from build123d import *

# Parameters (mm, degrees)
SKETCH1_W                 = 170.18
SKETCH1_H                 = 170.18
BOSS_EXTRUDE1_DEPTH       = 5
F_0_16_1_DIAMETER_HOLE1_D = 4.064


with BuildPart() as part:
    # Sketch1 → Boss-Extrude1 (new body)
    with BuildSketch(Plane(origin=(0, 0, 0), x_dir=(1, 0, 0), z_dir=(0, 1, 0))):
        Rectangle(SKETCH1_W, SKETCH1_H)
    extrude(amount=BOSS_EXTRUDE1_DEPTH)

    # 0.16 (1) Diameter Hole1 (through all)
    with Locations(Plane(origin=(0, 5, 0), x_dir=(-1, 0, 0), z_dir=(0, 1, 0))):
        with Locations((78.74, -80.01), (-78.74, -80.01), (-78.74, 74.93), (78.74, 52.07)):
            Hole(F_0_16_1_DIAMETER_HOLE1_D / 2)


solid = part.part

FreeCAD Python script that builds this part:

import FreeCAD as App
import Part
import Sketcher
Q = App.Units.Quantity


def add_polygon(sketch, points):
    """Adds a closed chain of lines whose ends are joined by coincident constraints."""
    first, n = sketch.GeometryCount, len(points)
    for a, b in zip(points, points[1:] + points[:1]):
        sketch.addGeometry(Part.LineSegment(App.Vector(*a, 0), App.Vector(*b, 0)), False)
    for i in range(n):
        sketch.addConstraint(Sketcher.Constraint("Coincident", first + i, 2, first + (i + 1) % n, 1))

doc = App.newDocument("Part")
params = doc.addObject("Spreadsheet::Sheet", "Params")
for row, (alias, value) in enumerate([
    ("sketch1_width", "6.7 in"),
    ("pad1_length", "5 mm"),
    ("sketch2_diameter", "0.16 in"),
    ("hole_diameter", "0.16 in"),
], start=1):
    params.set(f"A{row}", alias)
    params.set(f"B{row}", "=" + value)
    params.setAlias(f"B{row}", alias)

body = doc.addObject("PartDesign::Body", "Body")

# Sketch on XZ plane
sketch1 = body.newObject("Sketcher::SketchObject", "Sketch")
sketch1.AttachmentSupport = (doc.getObject("XZ_Plane"), [""])
sketch1.MapMode = "FlatFace"
add_polygon(sketch1, [(-85.09, -85.09), (-85.09, 85.09), (85.09, 85.09), (85.09, -85.09)])  # lines 0-3
sketch1.addConstraint(Sketcher.Constraint("Vertical", 0))
sketch1.addConstraint(Sketcher.Constraint("Horizontal", 1))
sketch1.addConstraint(Sketcher.Constraint("Vertical", 2))
sketch1.addConstraint(Sketcher.Constraint("Horizontal", 3))
sketch1.addConstraint(Sketcher.Constraint("Symmetric", 0, 2, 2, 2, -1, 1))
sketch1.addConstraint(Sketcher.Constraint("Equal", 3, 0))
sketch1.addConstraint(Sketcher.Constraint("DistanceX", 1, 1, 1, 2, Q("6.7 in")))
sketch1.setExpression("Constraints[10]", "Params.sketch1_width")
pad1 = body.newObject("PartDesign::Pad", "Pad")
pad1.Profile = sketch1
pad1.setExpression("Length", "Params.pad1_length")
pad1.Reversed = True

# Sketch on XZ plane
sketch2 = body.newObject("Sketcher::SketchObject", "Sketch001")
sketch2.AttachmentSupport = (doc.getObject("XZ_Plane"), [""])
sketch2.MapMode = "FlatFace"
sketch2.AttachmentOffset = App.Placement(App.Vector(0, 0, -5), App.Rotation())
sketch2.addGeometry(Part.Circle(App.Vector(-78.74, -80.01, 0), App.Vector(0, 0, 1), 2.032), False)
sketch2.addGeometry(Part.Circle(App.Vector(78.74, -80.01, 0), App.Vector(0, 0, 1), 2.032), False)
sketch2.addGeometry(Part.Circle(App.Vector(78.74, 74.93, 0), App.Vector(0, 0, 1), 2.032), False)
sketch2.addGeometry(Part.Circle(App.Vector(-78.74, 52.07, 0), App.Vector(0, 0, 1), 2.032), False)
sketch2.addConstraint(Sketcher.Constraint("Equal", 0, 1))
sketch2.addConstraint(Sketcher.Constraint("Equal", 1, 2))
sketch2.addConstraint(Sketcher.Constraint("Equal", 2, 3))
sketch2.addConstraint(Sketcher.Constraint("Symmetric", 0, 3, 1, 3, -2))
sketch2.addConstraint(Sketcher.Constraint("Vertical", 1, 3, 2, 3))
sketch2.addConstraint(Sketcher.Constraint("Vertical", 0, 3, 3, 3))
sketch2.addConstraint(Sketcher.Constraint("Diameter", 0, Q("0.16 in")))
sketch2.addConstraint(Sketcher.Constraint("DistanceX", 0, 3, -1, 1, Q("3.1 in")))
sketch2.addConstraint(Sketcher.Constraint("DistanceY", 1, 3, 2, 3, Q("6.1 in")))
sketch2.addConstraint(Sketcher.Constraint("DistanceY", 0, 3, 3, 3, Q("5.2 in")))
sketch2.addConstraint(Sketcher.Constraint("DistanceY", 0, 3, -1, 1, Q("3.15 in")))
sketch2.setExpression("Constraints[6]", "Params.sketch2_diameter")
doc.recompute()
hole = body.newObject("PartDesign::Hole", "Hole")
hole.Profile = sketch2
hole.ThreadType = "None"
hole.setExpression("Diameter", "Params.hole_diameter")
hole.DepthType = "ThroughAll"
hole.Reversed = True

doc.recompute()
